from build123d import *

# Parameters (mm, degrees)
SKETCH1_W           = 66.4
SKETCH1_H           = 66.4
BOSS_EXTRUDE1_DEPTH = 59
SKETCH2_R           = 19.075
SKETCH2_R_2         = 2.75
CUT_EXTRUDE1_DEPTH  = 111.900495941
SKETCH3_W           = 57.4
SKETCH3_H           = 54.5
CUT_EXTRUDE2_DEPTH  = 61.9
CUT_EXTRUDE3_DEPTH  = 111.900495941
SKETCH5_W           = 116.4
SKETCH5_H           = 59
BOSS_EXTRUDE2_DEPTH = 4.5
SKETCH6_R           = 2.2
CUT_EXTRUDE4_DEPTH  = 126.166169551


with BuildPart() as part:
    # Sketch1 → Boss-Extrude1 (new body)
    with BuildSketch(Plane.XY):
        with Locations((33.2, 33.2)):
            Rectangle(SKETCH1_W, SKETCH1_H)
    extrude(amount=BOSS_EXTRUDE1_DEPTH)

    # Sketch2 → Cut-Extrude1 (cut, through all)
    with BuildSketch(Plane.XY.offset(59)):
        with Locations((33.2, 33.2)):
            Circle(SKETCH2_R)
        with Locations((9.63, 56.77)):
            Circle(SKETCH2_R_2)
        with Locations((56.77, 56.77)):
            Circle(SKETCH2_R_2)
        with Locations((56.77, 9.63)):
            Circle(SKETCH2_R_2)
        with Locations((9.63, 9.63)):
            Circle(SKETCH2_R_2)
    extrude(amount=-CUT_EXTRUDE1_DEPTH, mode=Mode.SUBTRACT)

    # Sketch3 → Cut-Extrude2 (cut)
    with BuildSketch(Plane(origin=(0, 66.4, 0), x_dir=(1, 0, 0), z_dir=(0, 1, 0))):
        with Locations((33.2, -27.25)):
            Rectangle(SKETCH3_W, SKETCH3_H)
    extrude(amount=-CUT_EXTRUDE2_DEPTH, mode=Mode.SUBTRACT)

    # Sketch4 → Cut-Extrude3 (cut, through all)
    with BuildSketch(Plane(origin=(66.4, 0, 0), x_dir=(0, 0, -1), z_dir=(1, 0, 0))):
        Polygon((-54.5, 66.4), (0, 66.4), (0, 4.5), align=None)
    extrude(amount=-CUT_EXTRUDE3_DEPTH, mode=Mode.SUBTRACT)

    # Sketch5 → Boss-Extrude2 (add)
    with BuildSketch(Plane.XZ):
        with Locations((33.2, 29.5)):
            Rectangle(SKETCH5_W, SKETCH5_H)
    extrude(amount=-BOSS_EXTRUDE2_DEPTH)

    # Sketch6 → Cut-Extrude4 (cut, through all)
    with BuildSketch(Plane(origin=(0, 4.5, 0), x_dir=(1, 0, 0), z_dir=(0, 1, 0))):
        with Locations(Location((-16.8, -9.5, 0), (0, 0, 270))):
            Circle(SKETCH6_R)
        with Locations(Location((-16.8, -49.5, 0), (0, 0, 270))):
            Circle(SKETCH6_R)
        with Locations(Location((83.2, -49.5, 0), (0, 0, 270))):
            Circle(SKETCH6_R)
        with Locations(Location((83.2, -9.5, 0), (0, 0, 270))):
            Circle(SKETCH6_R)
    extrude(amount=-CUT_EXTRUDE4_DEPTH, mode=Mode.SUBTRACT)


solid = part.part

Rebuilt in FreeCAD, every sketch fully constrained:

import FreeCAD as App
import Part
import Sketcher
from FreeCAD import Vector
Q = App.Units.Quantity


def add_polygon(sketch, points):
    """Adds a closed chain of lines whose ends are joined by coincident constraints."""
    first, n = sketch.GeometryCount, len(points)
    for a, b in zip(points, points[1:] + points[:1]):
        sketch.addGeometry(Part.LineSegment(App.Vector(*a, 0), App.Vector(*b, 0)), False)
    for i in range(n):
        sketch.addConstraint(Sketcher.Constraint("Coincident", first + i, 2, first + (i + 1) % n, 1))

doc = App.newDocument("Part")
params = doc.addObject("Spreadsheet::Sheet", "Params")
for row, (alias, value) in enumerate([
    ("sketch1_width", "66.4 mm"),
    ("pad1_length", "59 mm"),
    ("sketch2_diameter", "5.5 mm"),
    ("sketch2_diameter2", "38.15 mm"),
    ("sketch3_width", "57.4 mm"),
    ("sketch3_height", "54.5 mm"),
    ("pocket2_length", "61.9 mm"),
    ("sketch4_width", "61.9 mm"),
    ("sketch4_height", "54.5 mm"),
    ("sketch5_height", "59 mm"),
    ("sketch5_width", "116.4 mm"),
    ("pad2_length", "4.5 mm"),
    ("sketch6_diameter", "4.4 mm"),
], start=1):
    params.set(f"A{row}", alias)
    params.set(f"B{row}", "=" + value)
    params.setAlias(f"B{row}", alias)

body = doc.addObject("PartDesign::Body", "Body")

sketch1 = body.newObject("Sketcher::SketchObject", "Sketch")
sketch1.AttachmentSupport = (doc.getObject("XY_Plane"), [""])
sketch1.MapMode = "FlatFace"
add_polygon(sketch1, [(0, 66.4), (0, 0), (66.4, 0), (66.4, 66.4)])
sketch1.addConstraint([
    Sketcher.Constraint("Vertical", 0),
    Sketcher.Constraint("Horizontal", 1),
    Sketcher.Constraint("Vertical", 2),
    Sketcher.Constraint("Horizontal", 3),
    Sketcher.Constraint("Coincident", 0, 2, -1, 1),
    Sketcher.Constraint("Equal", 3, 0),
    Sketcher.Constraint("DistanceX", 1, 1, 1, 2, Q("66.4 mm")),
])
sketch1.setExpression("Constraints[10]", "Params.sketch1_width")
pad1 = body.newObject("PartDesign::Pad", "Pad")
pad1.Profile = sketch1
pad1.setExpression("Length", "Params.pad1_length")

sketch2 = body.newObject("Sketcher::SketchObject", "Sketch001")
sketch2.AttachmentSupport = (doc.getObject("XY_Plane"), [""])
sketch2.MapMode = "FlatFace"
sketch2.AttachmentOffset = App.Placement(Vector(0, 0, 59), App.Rotation())
sketch2.addGeometry([
    Part.Circle(Vector(33.2, 33.2, 0), Vector(0, 0, 1), 19.075),
    Part.Circle(Vector(9.63, 56.77, 0), Vector(0, 0, 1), 2.75),
    Part.Circle(Vector(56.77, 56.77, 0), Vector(0, 0, 1), 2.75),
    Part.Circle(Vector(56.77, 9.63, 0), Vector(0, 0, 1), 2.75),
    Part.Circle(Vector(9.63, 9.63, 0), Vector(0, 0, 1), 2.75),
], False)
sketch2.addConstraint([
    Sketcher.Constraint("Equal", 1, 2),
    Sketcher.Constraint("Equal", 2, 3),
    Sketcher.Constraint("Equal", 3, 4),
    Sketcher.Constraint("Horizontal", 1, 3, 2, 3),
    Sketcher.Constraint("Horizontal", 3, 3, 4, 3),
    Sketcher.Constraint("Vertical", 2, 3, 3, 3),
    Sketcher.Constraint("Vertical", 1, 3, 4, 3),
    Sketcher.Constraint("Diameter", 1, Q("5.5 mm")),
    Sketcher.Constraint("Diameter", 0, Q("38.15 mm")),
    Sketcher.Constraint("DistanceX", -1, 1, 0, 3, Q("33.2 mm")),
    Sketcher.Constraint("DistanceY", -1, 1, 0, 3, Q("33.2 mm")),
    Sketcher.Constraint("DistanceX", -1, 1, 1, 3, Q("9.63 mm")),
    Sketcher.Constraint("DistanceY", -1, 1, 1, 3, Q("56.77 mm")),
    Sketcher.Constraint("DistanceX", -1, 1, 2, 3, Q("56.77 mm")),
    Sketcher.Constraint("DistanceY", -1, 1, 3, 3, Q("9.63 mm")),
])
sketch2.setExpression("Constraints[7]", "Params.sketch2_diameter")
sketch2.setExpression("Constraints[8]", "Params.sketch2_diameter2")
pocket1 = body.newObject("PartDesign::Pocket", "Pocket")
pocket1.Profile = sketch2
pocket1.Type = "ThroughAll"

sketch3 = body.newObject("Sketcher::SketchObject", "Sketch002")
sketch3.AttachmentSupport = (doc.getObject("XZ_Plane"), [""])
sketch3.MapMode = "FlatFace"
sketch3.AttachmentOffset = App.Placement(Vector(0, 0, -66.4), App.Rotation())
add_polygon(sketch3, [(4.5, 0), (4.5, 54.5), (61.9, 54.5), (61.9, 0)])
sketch3.addConstraint([
    Sketcher.Constraint("Vertical", 0),
    Sketcher.Constraint("Horizontal", 1),
    Sketcher.Constraint("Vertical", 2),
    Sketcher.Constraint("Horizontal", 3),
    Sketcher.Constraint("PointOnObject", 2, 2, -1),
    Sketcher.Constraint("DistanceX", 1, 1, 1, 2, Q("57.4 mm")),
    Sketcher.Constraint("DistanceY", 0, 1, 0, 2, Q("54.5 mm")),
    Sketcher.Constraint("DistanceX", -1, 1, 0, 2, Q("4.5 mm")),
])
sketch3.setExpression("Constraints[9]", "Params.sketch3_width")
sketch3.setExpression("Constraints[10]", "Params.sketch3_height")
pocket2 = body.newObject("PartDesign::Pocket", "Pocket001")
pocket2.Profile = sketch3
pocket2.setExpression("Length", "Params.pocket2_length")
pocket2.Reversed = True

sketch4 = body.newObject("Sketcher::SketchObject", "Sketch003")
sketch4.AttachmentSupport = (doc.getObject("YZ_Plane"), [""])
sketch4.MapMode = "FlatFace"
sketch4.AttachmentOffset = App.Placement(Vector(0, 0, 66.4), App.Rotation())
add_polygon(sketch4, [(66.4, 0), (66.4, 54.5), (4.5, 0)])
sketch4.addConstraint([
    Sketcher.Constraint("Vertical", 0),
    Sketcher.Constraint("Horizontal", 2),
    Sketcher.Constraint("PointOnObject", 1, 2, -1),
    Sketcher.Constraint("DistanceX", 2, 1, 2, 2, Q("61.9 mm")),
    Sketcher.Constraint("DistanceY", 0, 1, 0, 2, Q("54.5 mm")),
    Sketcher.Constraint("DistanceX", -1, 1, 0, 2, Q("66.4 mm")),
])
sketch4.setExpression("Constraints[6]", "Params.sketch4_width")
sketch4.setExpression("Constraints[7]", "Params.sketch4_height")
pocket3 = body.newObject("PartDesign::Pocket", "Pocket002")
pocket3.Profile = sketch4
pocket3.Type = "ThroughAll"

sketch5 = body.newObject("Sketcher::SketchObject", "Sketch004")
sketch5.AttachmentSupport = (doc.getObject("XZ_Plane"), [""])
sketch5.MapMode = "FlatFace"
add_polygon(sketch5, [(-25, 59), (-25, 0), (91.4, 0), (91.4, 59)])
sketch5.addConstraint([
    Sketcher.Constraint("Vertical", 0),
    Sketcher.Constraint("Horizontal", 1),
    Sketcher.Constraint("Vertical", 2),
    Sketcher.Constraint("Horizontal", 3),
    Sketcher.Constraint("PointOnObject", 0, 2, -1),
    Sketcher.Constraint("DistanceY", 0, 2, 0, 1, Q("59 mm")),
    Sketcher.Constraint("DistanceX", 1, 1, 1, 2, Q("116.4 mm")),
    Sketcher.Constraint("DistanceX", 0, 2, -1, 1, Q("25 mm")),
])
sketch5.setExpression("Constraints[9]", "Params.sketch5_height")
sketch5.setExpression("Constraints[10]", "Params.sketch5_width")
pad2 = body.newObject("PartDesign::Pad", "Pad001")
pad2.Profile = sketch5
pad2.setExpression("Length", "Params.pad2_length")
pad2.Reversed = True

sketch6 = body.newObject("Sketcher::SketchObject", "Sketch005")
sketch6.AttachmentSupport = (doc.getObject("XZ_Plane"), [""])
sketch6.MapMode = "FlatFace"
sketch6.AttachmentOffset = App.Placement(Vector(0, 0, -4.5), App.Rotation())
sketch6.addGeometry([
    Part.Circle(Vector(-16.8, 9.5, 0), Vector(0, 0, 1), 2.2),
    Part.Circle(Vector(-16.8, 49.5, 0), Vector(0, 0, 1), 2.2),
    Part.Circle(Vector(83.2, 49.5, 0), Vector(0, 0, 1), 2.2),
    Part.Circle(Vector(83.2, 9.5, 0), Vector(0, 0, 1), 2.2),
], False)
sketch6.addConstraint([
    Sketcher.Constraint("Equal", 0, 1),
    Sketcher.Constraint("Equal", 1, 2),
    Sketcher.Constraint("Equal", 2, 3),
    Sketcher.Constraint("Horizontal", 1, 3, 2, 3),
    Sketcher.Constraint("Horizontal", 0, 3, 3, 3),
    Sketcher.Constraint("Vertical", 0, 3, 1, 3),
    Sketcher.Constraint("Vertical", 2, 3, 3, 3),
    Sketcher.Constraint("Diameter", 0, Q("4.4 mm")),
    Sketcher.Constraint("DistanceY", 0, 3, 1, 3, Q("40 mm")),
    Sketcher.Constraint("DistanceX", 1, 3, 2, 3, Q("100 mm")),
    Sketcher.Constraint("DistanceX", 0, 3, -1, 1, Q("16.8 mm")),
    Sketcher.Constraint("DistanceY", -1, 1, 0, 3, Q("9.5 mm")),
])
sketch6.setExpression("Constraints[7]", "Params.sketch6_diameter")
pocket4 = body.newObject("PartDesign::Pocket", "Pocket003")
pocket4.Profile = sketch6
pocket4.Type = "ThroughAll"
pocket4.Reversed = True

doc.recompute()
